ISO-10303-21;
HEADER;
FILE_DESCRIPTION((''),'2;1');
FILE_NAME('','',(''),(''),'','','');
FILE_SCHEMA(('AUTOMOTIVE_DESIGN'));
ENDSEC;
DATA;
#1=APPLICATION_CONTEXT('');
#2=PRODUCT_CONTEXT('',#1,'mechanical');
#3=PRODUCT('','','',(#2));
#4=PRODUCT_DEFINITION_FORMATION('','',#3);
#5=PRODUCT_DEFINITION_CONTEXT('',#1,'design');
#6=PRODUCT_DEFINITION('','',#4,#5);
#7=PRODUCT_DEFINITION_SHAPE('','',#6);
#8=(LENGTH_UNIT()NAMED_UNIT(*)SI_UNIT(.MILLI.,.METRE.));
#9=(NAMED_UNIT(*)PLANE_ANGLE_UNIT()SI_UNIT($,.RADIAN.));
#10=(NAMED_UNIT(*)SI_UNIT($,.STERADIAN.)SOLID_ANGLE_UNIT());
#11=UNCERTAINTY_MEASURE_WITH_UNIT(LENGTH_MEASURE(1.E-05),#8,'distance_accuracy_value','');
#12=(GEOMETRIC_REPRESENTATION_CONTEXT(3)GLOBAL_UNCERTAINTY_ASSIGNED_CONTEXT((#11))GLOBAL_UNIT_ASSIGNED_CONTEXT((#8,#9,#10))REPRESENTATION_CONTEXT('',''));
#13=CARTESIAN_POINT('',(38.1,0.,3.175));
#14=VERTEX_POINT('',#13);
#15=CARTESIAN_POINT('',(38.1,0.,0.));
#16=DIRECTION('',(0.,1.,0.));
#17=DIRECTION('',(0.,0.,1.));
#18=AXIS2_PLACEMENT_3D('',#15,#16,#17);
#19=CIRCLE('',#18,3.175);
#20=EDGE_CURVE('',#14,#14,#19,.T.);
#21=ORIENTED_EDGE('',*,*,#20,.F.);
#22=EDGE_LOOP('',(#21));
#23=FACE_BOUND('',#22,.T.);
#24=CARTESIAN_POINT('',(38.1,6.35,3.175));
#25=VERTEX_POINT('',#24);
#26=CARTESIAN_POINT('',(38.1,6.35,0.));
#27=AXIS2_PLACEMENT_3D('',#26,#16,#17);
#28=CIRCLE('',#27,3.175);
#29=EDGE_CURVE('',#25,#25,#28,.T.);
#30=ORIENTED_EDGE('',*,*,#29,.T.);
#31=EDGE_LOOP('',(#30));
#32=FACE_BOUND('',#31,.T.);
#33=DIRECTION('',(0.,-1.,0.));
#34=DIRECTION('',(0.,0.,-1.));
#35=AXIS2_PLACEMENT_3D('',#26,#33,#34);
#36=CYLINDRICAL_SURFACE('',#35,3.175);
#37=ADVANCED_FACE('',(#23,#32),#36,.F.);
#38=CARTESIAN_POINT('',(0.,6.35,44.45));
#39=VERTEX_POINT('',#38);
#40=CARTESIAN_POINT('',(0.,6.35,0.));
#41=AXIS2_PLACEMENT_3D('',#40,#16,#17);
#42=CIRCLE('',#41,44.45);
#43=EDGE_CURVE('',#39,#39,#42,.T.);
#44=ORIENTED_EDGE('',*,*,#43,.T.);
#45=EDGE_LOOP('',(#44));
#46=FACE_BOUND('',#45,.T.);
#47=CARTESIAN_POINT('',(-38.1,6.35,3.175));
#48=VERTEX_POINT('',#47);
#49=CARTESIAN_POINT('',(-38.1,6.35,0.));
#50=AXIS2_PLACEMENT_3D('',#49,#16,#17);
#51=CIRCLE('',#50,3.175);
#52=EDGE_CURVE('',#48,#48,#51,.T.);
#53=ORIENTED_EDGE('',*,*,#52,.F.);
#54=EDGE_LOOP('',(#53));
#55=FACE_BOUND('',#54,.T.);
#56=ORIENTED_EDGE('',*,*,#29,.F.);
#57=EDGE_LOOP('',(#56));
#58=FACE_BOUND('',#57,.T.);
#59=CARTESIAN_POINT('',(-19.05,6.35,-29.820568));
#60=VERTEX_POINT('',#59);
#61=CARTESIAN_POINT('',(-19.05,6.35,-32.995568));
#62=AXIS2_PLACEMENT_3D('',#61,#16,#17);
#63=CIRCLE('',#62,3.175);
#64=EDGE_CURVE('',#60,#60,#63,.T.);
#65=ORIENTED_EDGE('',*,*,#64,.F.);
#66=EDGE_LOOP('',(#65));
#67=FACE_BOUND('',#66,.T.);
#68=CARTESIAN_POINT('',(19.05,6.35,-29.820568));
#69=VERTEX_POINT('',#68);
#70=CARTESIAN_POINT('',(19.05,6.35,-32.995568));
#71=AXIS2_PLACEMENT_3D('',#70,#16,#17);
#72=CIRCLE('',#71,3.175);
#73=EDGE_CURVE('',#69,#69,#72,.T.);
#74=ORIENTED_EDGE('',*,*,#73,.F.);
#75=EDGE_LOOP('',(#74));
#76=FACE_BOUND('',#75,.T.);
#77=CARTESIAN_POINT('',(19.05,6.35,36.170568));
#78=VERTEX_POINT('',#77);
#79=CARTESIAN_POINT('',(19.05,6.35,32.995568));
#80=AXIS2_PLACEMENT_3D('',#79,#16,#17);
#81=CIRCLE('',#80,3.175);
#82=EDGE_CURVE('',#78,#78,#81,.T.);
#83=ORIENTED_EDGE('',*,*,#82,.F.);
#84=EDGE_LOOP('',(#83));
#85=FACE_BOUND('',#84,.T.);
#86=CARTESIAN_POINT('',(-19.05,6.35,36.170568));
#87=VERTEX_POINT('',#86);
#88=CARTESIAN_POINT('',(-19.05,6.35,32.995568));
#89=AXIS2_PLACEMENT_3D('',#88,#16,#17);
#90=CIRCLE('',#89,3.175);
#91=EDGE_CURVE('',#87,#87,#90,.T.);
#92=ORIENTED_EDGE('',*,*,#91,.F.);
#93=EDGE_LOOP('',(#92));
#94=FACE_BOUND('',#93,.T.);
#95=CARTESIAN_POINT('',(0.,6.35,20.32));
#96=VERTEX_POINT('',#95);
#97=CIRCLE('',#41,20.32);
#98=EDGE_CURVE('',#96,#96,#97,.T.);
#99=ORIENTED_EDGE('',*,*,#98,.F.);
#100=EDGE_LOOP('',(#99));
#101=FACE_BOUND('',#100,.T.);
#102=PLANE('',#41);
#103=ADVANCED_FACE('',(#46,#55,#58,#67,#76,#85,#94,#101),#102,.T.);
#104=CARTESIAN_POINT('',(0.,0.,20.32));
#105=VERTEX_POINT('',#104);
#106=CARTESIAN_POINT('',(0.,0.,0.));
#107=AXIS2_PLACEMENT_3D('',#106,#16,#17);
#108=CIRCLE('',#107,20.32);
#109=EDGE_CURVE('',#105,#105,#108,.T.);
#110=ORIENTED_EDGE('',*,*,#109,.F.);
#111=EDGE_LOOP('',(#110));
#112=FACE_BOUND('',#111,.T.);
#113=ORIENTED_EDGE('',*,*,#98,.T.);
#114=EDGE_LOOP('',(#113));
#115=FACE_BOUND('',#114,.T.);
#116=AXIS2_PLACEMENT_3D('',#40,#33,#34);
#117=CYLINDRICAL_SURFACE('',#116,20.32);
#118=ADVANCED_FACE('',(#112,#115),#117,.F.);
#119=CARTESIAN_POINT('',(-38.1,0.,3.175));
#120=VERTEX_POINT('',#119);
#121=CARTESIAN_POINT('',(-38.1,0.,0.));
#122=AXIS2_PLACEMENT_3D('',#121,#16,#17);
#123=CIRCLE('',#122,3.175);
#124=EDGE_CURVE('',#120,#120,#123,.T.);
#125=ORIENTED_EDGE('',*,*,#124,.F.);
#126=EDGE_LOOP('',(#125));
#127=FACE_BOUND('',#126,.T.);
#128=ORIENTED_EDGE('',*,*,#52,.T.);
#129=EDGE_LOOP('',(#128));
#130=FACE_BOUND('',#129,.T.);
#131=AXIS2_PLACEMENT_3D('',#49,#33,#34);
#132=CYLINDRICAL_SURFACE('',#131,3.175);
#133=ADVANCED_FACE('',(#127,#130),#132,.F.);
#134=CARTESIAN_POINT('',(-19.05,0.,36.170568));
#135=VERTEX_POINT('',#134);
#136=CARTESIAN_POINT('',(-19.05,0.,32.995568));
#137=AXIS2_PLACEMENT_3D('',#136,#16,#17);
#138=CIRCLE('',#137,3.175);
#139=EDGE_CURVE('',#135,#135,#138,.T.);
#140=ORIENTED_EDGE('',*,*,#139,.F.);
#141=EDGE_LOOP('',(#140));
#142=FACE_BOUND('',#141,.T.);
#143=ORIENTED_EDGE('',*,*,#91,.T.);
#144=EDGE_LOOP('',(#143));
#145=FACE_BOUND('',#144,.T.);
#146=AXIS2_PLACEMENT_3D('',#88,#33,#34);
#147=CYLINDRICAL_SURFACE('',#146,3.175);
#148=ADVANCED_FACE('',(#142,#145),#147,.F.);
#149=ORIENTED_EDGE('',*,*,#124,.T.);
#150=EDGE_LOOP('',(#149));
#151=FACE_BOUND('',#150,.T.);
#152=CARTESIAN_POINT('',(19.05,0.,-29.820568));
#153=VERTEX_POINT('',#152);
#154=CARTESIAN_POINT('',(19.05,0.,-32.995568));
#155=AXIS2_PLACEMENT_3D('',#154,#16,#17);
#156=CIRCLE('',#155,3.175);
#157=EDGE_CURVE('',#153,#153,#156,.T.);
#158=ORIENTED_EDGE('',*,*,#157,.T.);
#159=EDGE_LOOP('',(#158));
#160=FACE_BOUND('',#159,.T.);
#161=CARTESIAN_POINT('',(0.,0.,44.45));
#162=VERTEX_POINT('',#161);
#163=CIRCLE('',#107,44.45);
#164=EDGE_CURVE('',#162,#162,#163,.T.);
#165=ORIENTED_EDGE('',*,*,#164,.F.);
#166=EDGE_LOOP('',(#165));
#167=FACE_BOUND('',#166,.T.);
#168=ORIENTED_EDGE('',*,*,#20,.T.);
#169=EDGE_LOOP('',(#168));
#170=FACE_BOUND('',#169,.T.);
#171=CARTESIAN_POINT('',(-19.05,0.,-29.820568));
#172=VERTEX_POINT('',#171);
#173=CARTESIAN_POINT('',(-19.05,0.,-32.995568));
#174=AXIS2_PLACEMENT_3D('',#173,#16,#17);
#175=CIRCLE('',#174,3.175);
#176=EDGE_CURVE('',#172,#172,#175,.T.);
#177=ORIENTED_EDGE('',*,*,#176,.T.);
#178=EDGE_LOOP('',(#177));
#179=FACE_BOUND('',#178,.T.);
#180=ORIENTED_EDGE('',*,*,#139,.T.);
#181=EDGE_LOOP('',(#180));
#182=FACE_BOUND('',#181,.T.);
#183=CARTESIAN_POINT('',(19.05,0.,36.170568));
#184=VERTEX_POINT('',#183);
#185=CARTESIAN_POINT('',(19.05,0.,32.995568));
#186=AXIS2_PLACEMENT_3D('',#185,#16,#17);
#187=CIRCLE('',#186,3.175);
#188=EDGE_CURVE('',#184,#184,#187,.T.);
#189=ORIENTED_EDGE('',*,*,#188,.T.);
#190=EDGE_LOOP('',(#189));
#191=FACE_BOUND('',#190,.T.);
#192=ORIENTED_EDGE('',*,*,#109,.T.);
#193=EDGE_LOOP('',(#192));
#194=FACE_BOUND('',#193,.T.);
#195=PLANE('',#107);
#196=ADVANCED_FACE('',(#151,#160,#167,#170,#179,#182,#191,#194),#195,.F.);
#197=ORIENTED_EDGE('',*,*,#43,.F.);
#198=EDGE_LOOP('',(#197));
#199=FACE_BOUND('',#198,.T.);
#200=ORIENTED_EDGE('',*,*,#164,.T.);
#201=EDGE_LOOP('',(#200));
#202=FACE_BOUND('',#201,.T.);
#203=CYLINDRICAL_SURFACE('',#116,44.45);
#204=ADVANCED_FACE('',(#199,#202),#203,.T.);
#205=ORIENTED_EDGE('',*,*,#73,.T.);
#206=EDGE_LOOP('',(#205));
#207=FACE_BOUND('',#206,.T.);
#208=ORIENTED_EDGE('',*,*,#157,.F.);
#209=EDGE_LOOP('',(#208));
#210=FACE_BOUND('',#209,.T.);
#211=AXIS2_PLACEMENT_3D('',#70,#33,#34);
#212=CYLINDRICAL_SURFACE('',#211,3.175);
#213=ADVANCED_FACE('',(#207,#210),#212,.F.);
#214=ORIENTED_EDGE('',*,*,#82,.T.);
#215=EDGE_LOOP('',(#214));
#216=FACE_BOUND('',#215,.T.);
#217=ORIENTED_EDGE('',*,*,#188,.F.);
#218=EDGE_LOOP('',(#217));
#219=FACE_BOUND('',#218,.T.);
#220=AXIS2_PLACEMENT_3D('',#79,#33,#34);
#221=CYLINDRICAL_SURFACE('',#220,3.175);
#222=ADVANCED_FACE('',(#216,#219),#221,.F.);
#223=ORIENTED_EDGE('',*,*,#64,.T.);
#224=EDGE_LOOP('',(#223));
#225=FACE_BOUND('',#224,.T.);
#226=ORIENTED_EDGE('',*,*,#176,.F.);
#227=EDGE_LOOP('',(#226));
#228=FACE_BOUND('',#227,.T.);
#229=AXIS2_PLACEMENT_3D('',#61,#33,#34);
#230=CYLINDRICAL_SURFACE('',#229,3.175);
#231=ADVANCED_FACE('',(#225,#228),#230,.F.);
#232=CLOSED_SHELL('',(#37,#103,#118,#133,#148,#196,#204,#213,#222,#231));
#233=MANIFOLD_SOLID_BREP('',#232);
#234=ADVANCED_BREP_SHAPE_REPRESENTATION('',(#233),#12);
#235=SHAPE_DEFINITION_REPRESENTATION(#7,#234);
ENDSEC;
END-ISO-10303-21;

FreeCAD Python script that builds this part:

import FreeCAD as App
import Part
import Sketcher
from FreeCAD import Vector
Q = App.Units.Quantity

doc = App.newDocument("Part")
body = doc.addObject("PartDesign::Body", "Body")

# Sketch on XZ plane
sketch1 = doc.addObject("Sketcher::SketchObject", "Sketch")
body.addObject(sketch1)
sketch1.AttachmentSupport = (doc.XZ_Plane, [""])
sketch1.MapMode = "FlatFace"
sketch1.addGeometry(Part.Circle(Vector(0, 0, 0), Vector(0, 0, 1), 44.5), False)
sketch1.addGeometry(Part.Circle(Vector(-19.1, -33, 0), Vector(0, 0, 1), 3.2), False)
sketch1.addGeometry(Part.Circle(Vector(-38.1, 0, 0), Vector(0, 0, 1), 3.2), False)
sketch1.addGeometry(Part.Circle(Vector(0, 0, 0), Vector(0, 0, 1), 20.3), False)
sketch1.addGeometry(Part.Circle(Vector(-19.1, 33, 0), Vector(0, 0, 1), 3.2), False)
sketch1.addGeometry(Part.Circle(Vector(19.1, -33, 0), Vector(0, 0, 1), 3.2), False)
sketch1.addGeometry(Part.Circle(Vector(38.1, 0, 0), Vector(0, 0, 1), 3.2), False)
sketch1.addGeometry(Part.Circle(Vector(19.1, 33, 0), Vector(0, 0, 1), 3.2), False)
sketch1.addConstraint(Sketcher.Constraint("Coincident", 0, 3, -1, 1))
sketch1.addConstraint(Sketcher.Constraint("Coincident", 3, 3, -1, 1))
sketch1.addConstraint(Sketcher.Constraint("Equal", 1, 2))
sketch1.addConstraint(Sketcher.Constraint("Equal", 2, 4))
sketch1.addConstraint(Sketcher.Constraint("Equal", 4, 5))
sketch1.addConstraint(Sketcher.Constraint("Equal", 5, 6))
sketch1.addConstraint(Sketcher.Constraint("Equal", 6, 7))
sketch1.addConstraint(Sketcher.Constraint("Symmetric", 4, 3, 5, 3, -1, 1))
sketch1.addConstraint(Sketcher.Constraint("Symmetric", 2, 3, 6, 3, -1, 1))
sketch1.addConstraint(Sketcher.Constraint("Symmetric", 1, 3, 7, 3, -1, 1))
sketch1.addConstraint(Sketcher.Constraint("Symmetric", 1, 3, 5, 3, -2))
sketch1.addConstraint(Sketcher.Constraint("PointOnObject", 2, 3, -1))
sketch1.addConstraint(Sketcher.Constraint("Diameter", 0, Q("3.5 in")))
sketch1.addConstraint(Sketcher.Constraint("Diameter", 3, Q("1.6 in")))
sketch1.addConstraint(Sketcher.Constraint("Diameter", 1, Q("0.25 in")))
sketch1.addConstraint(Sketcher.Constraint("DistanceX", 2, 3, -1, 1, Q("1.5 in")))
sketch1.addConstraint(Sketcher.Constraint("DistanceX", 1, 3, 5, 3, Q("1.5 in")))
sketch1.addConstraint(Sketcher.Constraint("DistanceY", 1, 3, -1, 1, Q("32.995568 mm")))
pad1 = doc.addObject("PartDesign::Pad", "Pad")
body.addObject(pad1)
pad1.Profile = sketch1
pad1.Length = Q("0.25 in")
pad1.Reversed = True

doc.recompute()
